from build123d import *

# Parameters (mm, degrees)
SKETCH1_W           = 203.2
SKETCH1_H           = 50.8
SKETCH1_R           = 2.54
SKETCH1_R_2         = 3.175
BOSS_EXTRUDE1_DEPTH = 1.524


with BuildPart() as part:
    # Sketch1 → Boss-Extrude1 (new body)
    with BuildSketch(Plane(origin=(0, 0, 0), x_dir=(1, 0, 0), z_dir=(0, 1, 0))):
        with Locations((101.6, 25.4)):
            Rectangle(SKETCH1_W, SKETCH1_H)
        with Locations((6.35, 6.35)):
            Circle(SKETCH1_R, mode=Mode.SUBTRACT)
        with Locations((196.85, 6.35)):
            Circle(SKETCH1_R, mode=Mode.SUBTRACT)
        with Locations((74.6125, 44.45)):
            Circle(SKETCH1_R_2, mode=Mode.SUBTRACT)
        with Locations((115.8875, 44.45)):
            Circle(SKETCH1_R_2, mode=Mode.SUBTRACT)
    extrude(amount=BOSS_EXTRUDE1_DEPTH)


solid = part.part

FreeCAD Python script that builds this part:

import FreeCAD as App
import Part
import Sketcher

V = App.Vector
Q = App.Units.Quantity


def add_polygon(sketch, points):
    """Adds a closed chain of lines whose ends are joined by coincident constraints."""
    first, n = sketch.GeometryCount, len(points)
    for a, b in zip(points, points[1:] + points[:1]):
        sketch.addGeometry(Part.LineSegment(App.Vector(*a, 0), App.Vector(*b, 0)), False)
    for i in range(n):
        sketch.addConstraint(Sketcher.Constraint("Coincident", first + i, 2, first + (i + 1) % n, 1))

doc = App.newDocument("Part")
body = doc.addObject("PartDesign::Body", "Body")

sketch1 = body.newObject("Sketcher::SketchObject", "Sketch")
sketch1.AttachmentSupport = (doc.getObject("XZ_Plane"), [""])
sketch1.MapMode = "FlatFace"
add_polygon(sketch1, [(0, -50.8), (0, 0), (203.2, 0), (203.2, -50.8)])
sketch1.addGeometry(Part.Circle(V(6.35, -6.35, 0), V(0, 0, 1), 2.54), False)
sketch1.addGeometry(Part.Circle(V(196.85, -6.35, 0), V(0, 0, 1), 2.54), False)
sketch1.addGeometry(Part.Circle(V(74.6125, -44.45, 0), V(0, 0, 1), 3.175), False)
sketch1.addGeometry(Part.Circle(V(115.8875, -44.45, 0), V(0, 0, 1), 3.175), False)
sketch1.addConstraint(Sketcher.Constraint("Vertical", 0))
sketch1.addConstraint(Sketcher.Constraint("Horizontal", 1))
sketch1.addConstraint(Sketcher.Constraint("Vertical", 2))
sketch1.addConstraint(Sketcher.Constraint("Horizontal", 3))
sketch1.addConstraint(Sketcher.Constraint("Coincident", 0, 2, -1, 1))
sketch1.addConstraint(Sketcher.Constraint("Equal", 4, 5))
sketch1.addConstraint(Sketcher.Constraint("Equal", 6, 7))
sketch1.addConstraint(Sketcher.Constraint("Horizontal", 4, 3, 5, 3))
sketch1.addConstraint(Sketcher.Constraint("Horizontal", 6, 3, 7, 3))
sketch1.addConstraint(Sketcher.Constraint("Diameter", 4, Q("0.2 in")))
sketch1.addConstraint(Sketcher.Constraint("Diameter", 6, Q("0.25 in")))
sketch1.addConstraint(Sketcher.Constraint("DistanceX", 1, 1, 1, 2, Q("8 in")))
sketch1.addConstraint(Sketcher.Constraint("DistanceY", 0, 1, 0, 2, Q("2 in")))
sketch1.addConstraint(Sketcher.Constraint("DistanceX", 4, 3, 5, 3, Q("7.5 in")))
sketch1.addConstraint(Sketcher.Constraint("DistanceY", 6, 3, 4, 3, Q("1.5 in")))
sketch1.addConstraint(Sketcher.Constraint("DistanceX", -1, 1, 4, 3, Q("0.25 in")))
sketch1.addConstraint(Sketcher.Constraint("DistanceY", 4, 3, -1, 1, Q("0.25 in")))
sketch1.addConstraint(Sketcher.Constraint("DistanceX", -1, 1, 6, 3, Q("2.9375 in")))
sketch1.addConstraint(Sketcher.Constraint("DistanceX", -1, 1, 7, 3, Q("4.5625 in")))
pad1 = body.newObject("PartDesign::Pad", "Pad")
pad1.Profile = sketch1
pad1.Length = Q("0.06 in")
pad1.Reversed = True

doc.recompute()
